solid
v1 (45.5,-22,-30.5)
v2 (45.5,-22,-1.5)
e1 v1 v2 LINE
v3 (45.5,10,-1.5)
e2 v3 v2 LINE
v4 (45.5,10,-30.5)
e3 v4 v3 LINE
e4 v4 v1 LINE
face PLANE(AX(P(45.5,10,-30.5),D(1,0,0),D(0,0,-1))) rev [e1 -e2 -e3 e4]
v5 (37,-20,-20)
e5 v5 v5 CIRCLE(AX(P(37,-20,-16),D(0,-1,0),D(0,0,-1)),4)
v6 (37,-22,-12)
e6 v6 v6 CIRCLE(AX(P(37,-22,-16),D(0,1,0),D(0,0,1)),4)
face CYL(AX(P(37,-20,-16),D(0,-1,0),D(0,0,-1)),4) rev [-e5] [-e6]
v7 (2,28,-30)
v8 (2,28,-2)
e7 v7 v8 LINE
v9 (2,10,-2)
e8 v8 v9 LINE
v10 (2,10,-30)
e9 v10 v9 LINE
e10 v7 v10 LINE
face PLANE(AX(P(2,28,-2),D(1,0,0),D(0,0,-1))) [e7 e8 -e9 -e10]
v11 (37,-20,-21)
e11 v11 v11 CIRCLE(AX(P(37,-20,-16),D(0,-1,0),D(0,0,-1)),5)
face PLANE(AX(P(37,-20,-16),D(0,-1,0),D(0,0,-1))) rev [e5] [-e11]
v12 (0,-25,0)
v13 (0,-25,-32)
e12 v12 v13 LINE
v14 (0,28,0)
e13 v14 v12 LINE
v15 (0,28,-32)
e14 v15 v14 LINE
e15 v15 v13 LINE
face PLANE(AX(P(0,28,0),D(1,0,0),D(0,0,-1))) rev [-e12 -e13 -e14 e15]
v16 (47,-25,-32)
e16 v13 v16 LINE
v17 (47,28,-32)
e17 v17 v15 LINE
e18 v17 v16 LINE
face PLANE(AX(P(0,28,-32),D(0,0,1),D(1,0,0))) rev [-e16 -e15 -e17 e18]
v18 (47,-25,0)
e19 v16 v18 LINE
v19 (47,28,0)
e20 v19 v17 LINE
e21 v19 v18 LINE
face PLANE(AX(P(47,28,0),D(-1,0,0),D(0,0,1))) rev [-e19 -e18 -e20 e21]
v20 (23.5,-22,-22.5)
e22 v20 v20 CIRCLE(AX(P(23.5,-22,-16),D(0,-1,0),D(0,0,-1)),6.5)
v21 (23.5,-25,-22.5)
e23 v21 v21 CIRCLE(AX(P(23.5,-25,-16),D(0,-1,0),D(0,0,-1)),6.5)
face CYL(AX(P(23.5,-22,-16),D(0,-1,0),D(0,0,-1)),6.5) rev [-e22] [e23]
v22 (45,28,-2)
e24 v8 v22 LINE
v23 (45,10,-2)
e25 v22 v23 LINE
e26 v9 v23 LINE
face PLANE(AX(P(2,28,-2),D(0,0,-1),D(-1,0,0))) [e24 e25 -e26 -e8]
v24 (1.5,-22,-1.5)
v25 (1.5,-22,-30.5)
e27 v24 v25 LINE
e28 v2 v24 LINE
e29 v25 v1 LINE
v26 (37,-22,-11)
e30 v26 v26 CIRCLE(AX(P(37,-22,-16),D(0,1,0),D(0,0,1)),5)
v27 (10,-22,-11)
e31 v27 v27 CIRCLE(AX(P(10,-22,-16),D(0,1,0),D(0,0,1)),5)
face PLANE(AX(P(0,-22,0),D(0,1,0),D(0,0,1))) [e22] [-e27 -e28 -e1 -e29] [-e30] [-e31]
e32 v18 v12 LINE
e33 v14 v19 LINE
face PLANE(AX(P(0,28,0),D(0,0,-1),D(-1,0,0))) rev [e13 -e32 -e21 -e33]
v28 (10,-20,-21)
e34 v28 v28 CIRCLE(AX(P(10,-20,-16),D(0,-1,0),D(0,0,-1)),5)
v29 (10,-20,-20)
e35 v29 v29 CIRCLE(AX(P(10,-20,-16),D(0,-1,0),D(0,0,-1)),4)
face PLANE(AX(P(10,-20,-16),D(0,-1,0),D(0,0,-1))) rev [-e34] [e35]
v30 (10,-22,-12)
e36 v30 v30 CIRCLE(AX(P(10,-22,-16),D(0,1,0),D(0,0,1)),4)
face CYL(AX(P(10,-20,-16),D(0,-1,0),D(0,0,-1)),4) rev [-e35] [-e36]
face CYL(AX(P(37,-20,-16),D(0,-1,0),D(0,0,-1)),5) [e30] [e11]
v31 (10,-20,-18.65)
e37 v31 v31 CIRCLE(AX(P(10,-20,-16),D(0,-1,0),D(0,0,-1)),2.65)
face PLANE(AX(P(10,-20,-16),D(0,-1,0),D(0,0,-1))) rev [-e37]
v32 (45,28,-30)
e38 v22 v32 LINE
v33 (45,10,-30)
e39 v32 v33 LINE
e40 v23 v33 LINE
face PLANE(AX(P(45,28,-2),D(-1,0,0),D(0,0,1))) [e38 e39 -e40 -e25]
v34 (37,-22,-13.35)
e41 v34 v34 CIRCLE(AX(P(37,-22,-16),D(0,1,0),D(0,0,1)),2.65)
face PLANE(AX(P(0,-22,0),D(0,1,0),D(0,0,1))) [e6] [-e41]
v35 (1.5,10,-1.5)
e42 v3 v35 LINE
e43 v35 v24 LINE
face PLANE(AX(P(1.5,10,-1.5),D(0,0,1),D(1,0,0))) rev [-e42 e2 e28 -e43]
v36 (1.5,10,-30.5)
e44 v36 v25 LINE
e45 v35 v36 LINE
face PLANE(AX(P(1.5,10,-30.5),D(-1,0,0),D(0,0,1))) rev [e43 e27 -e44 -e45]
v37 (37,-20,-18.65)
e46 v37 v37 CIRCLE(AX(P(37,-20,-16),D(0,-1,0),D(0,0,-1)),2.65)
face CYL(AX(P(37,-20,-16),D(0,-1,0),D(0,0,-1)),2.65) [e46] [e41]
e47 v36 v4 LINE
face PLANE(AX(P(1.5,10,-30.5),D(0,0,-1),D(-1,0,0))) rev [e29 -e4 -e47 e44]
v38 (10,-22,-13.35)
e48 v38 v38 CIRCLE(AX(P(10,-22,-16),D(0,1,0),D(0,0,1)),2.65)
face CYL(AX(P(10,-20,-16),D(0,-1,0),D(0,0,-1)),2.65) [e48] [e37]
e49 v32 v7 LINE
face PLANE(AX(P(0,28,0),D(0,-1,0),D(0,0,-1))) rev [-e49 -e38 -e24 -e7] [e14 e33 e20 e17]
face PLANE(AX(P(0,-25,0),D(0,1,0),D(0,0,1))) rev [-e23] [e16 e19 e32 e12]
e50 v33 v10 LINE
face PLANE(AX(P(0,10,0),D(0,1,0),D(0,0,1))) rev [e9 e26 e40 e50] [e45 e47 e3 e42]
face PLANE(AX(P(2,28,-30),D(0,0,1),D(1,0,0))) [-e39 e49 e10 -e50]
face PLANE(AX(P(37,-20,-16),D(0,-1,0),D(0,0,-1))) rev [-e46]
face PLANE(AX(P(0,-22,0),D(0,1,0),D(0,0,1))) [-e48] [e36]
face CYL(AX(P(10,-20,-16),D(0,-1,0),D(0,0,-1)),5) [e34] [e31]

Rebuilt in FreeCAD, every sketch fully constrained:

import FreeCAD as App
import Part
import Sketcher
from FreeCAD import Vector

doc = App.newDocument("Part")
params = doc.addObject("Spreadsheet::Sheet", "Params")
for row, (alias, value) in enumerate([
    ("sketch1_width", "47 mm"),
    ("sketch1_width2", "43 mm"),
    ("sketch1_height", "32 mm"),
    ("sketch1_height2", "28 mm"),
    ("pad1_length", "28 mm"),
    ("sketch2_width", "44 mm"),
    ("sketch2_height", "29 mm"),
    ("pocket1_length", "10 mm"),
    ("sketch3_width", "47 mm"),
    ("sketch3_width2", "44 mm"),
    ("sketch3_height", "32 mm"),
    ("sketch3_height2", "29 mm"),
    ("pad2_length", "25 mm"),
    ("sketch4_diameter", "13 mm"),
    ("sketch4_width", "47 mm"),
    ("sketch4_height", "32 mm"),
    ("pad3_length", "3 mm"),
    ("sketch5_diameter", "10 mm"),
    ("sketch5_diameter2", "8 mm"),
    ("pad4_length", "5 mm"),
    ("sketch6_diameter", "5.3 mm"),
    ("pad5_length", "5 mm"),
], start=1):
    params.set(f"A{row}", alias)
    params.set(f"B{row}", "=" + value)
    params.setAlias(f"B{row}", alias)

body = doc.addObject("PartDesign::Body", "Body")

sketch1 = body.newObject("Sketcher::SketchObject", "Sketch")
sketch1.AttachmentSupport = (doc.getObject("XZ_Plane"), [""])
sketch1.MapMode = "FlatFace"
sketch1.addGeometry([
    Part.LineSegment(Vector(0, -32, 0), Vector(0, 0, 0)),
    Part.LineSegment(Vector(0, 0, 0), Vector(47, 0, 0)),
    Part.LineSegment(Vector(47, 0, 0), Vector(47, -32, 0)),
    Part.LineSegment(Vector(47, -32, 0), Vector(0, -32, 0)),
    Part.LineSegment(Vector(45, -2, 0), Vector(2, -2, 0)),
    Part.LineSegment(Vector(2, -2, 0), Vector(2, -30, 0)),
    Part.LineSegment(Vector(2, -30, 0), Vector(45, -30, 0)),
    Part.LineSegment(Vector(45, -30, 0), Vector(45, -2, 0)),
], False)
sketch1.addConstraint([
    Sketcher.Constraint("Coincident", 0, 2, 1, 1),
    Sketcher.Constraint("Coincident", 1, 2, 2, 1),
    Sketcher.Constraint("Coincident", 2, 2, 3, 1),
    Sketcher.Constraint("Coincident", 3, 2, 0, 1),
    Sketcher.Constraint("Coincident", 4, 2, 5, 1),
    Sketcher.Constraint("Coincident", 5, 2, 6, 1),
    Sketcher.Constraint("Coincident", 6, 2, 7, 1),
    Sketcher.Constraint("Coincident", 7, 2, 4, 1),
    Sketcher.Constraint("Vertical", 0),
    Sketcher.Constraint("Horizontal", 1),
    Sketcher.Constraint("Vertical", 2),
    Sketcher.Constraint("Horizontal", 3),
    Sketcher.Constraint("Horizontal", 4),
    Sketcher.Constraint("Vertical", 5),
    Sketcher.Constraint("Horizontal", 6),
    Sketcher.Constraint("Vertical", 7),
    Sketcher.Constraint("Coincident", 0, 2, -1, 1),
    Sketcher.Constraint("DistanceX", 1, 1, 1, 2, 47.0),
    Sketcher.Constraint("DistanceX", 4, 2, 4, 1, 43.0),
    Sketcher.Constraint("DistanceY", 0, 1, 0, 2, 32.0),
    Sketcher.Constraint("DistanceY", 5, 2, 5, 1, 28.0),
    Sketcher.Constraint("DistanceX", -1, 1, 4, 2, 2.0),
    Sketcher.Constraint("DistanceY", 4, 2, -1, 1, 2.0),
])
sketch1.setExpression("Constraints[17]", "Params.sketch1_width")
sketch1.setExpression("Constraints[18]", "Params.sketch1_width2")
sketch1.setExpression("Constraints[19]", "Params.sketch1_height")
sketch1.setExpression("Constraints[20]", "Params.sketch1_height2")
pad1 = body.newObject("PartDesign::Pad", "Pad")
pad1.Profile = sketch1
pad1.setExpression("Length", "Params.pad1_length")
pad1.Reversed = True

sketch2 = body.newObject("Sketcher::SketchObject", "Sketch001")
sketch2.AttachmentSupport = (doc.getObject("XZ_Plane"), [""])
sketch2.MapMode = "FlatFace"
sketch2.addGeometry([
    Part.LineSegment(Vector(1.5, -1.5, 0), Vector(1.5, -30.5, 0)),
    Part.LineSegment(Vector(1.5, -30.5, 0), Vector(45.5, -30.5, 0)),
    Part.LineSegment(Vector(45.5, -30.5, 0), Vector(45.5, -1.5, 0)),
    Part.LineSegment(Vector(45.5, -1.5, 0), Vector(1.5, -1.5, 0)),
], False)
sketch2.addConstraint([
    Sketcher.Constraint("Coincident", 0, 2, 1, 1),
    Sketcher.Constraint("Coincident", 1, 2, 2, 1),
    Sketcher.Constraint("Coincident", 2, 2, 3, 1),
    Sketcher.Constraint("Coincident", 3, 2, 0, 1),
    Sketcher.Constraint("Vertical", 0),
    Sketcher.Constraint("Horizontal", 1),
    Sketcher.Constraint("Vertical", 2),
    Sketcher.Constraint("Horizontal", 3),
    Sketcher.Constraint("DistanceX", 1, 1, 1, 2, 44.0),
    Sketcher.Constraint("DistanceY", 0, 2, 0, 1, 29.0),
    Sketcher.Constraint("DistanceX", -1, 1, 0, 2, 1.5),
    Sketcher.Constraint("DistanceY", 0, 2, -1, 1, 30.5),
])
sketch2.setExpression("Constraints[8]", "Params.sketch2_width")
sketch2.setExpression("Constraints[9]", "Params.sketch2_height")
pocket1 = body.newObject("PartDesign::Pocket", "Pocket")
pocket1.Profile = sketch2
pocket1.setExpression("Length", "Params.pocket1_length")

sketch3 = body.newObject("Sketcher::SketchObject", "Sketch002")
sketch3.AttachmentSupport = (doc.getObject("XZ_Plane"), [""])
sketch3.MapMode = "FlatFace"
sketch3.addGeometry([
    Part.LineSegment(Vector(0, 0, 0), Vector(0, -32, 0)),
    Part.LineSegment(Vector(0, -32, 0), Vector(47, -32, 0)),
    Part.LineSegment(Vector(47, -32, 0), Vector(47, 0, 0)),
    Part.LineSegment(Vector(47, 0, 0), Vector(0, 0, 0)),
    Part.LineSegment(Vector(45.5, -30.5, 0), Vector(1.5, -30.5, 0)),
    Part.LineSegment(Vector(1.5, -30.5, 0), Vector(1.5, -1.5, 0)),
    Part.LineSegment(Vector(1.5, -1.5, 0), Vector(45.5, -1.5, 0)),
    Part.LineSegment(Vector(45.5, -1.5, 0), Vector(45.5, -30.5, 0)),
], False)
sketch3.addConstraint([
    Sketcher.Constraint("Coincident", 0, 2, 1, 1),
    Sketcher.Constraint("Coincident", 1, 2, 2, 1),
    Sketcher.Constraint("Coincident", 2, 2, 3, 1),
    Sketcher.Constraint("Coincident", 3, 2, 0, 1),
    Sketcher.Constraint("Coincident", 4, 2, 5, 1),
    Sketcher.Constraint("Coincident", 5, 2, 6, 1),
    Sketcher.Constraint("Coincident", 6, 2, 7, 1),
    Sketcher.Constraint("Coincident", 7, 2, 4, 1),
    Sketcher.Constraint("Vertical", 0),
    Sketcher.Constraint("Horizontal", 1),
    Sketcher.Constraint("Vertical", 2),
    Sketcher.Constraint("Horizontal", 3),
    Sketcher.Constraint("Horizontal", 4),
    Sketcher.Constraint("Vertical", 5),
    Sketcher.Constraint("Horizontal", 6),
    Sketcher.Constraint("Vertical", 7),
    Sketcher.Constraint("Coincident", 3, 2, -1, 1),
    Sketcher.Constraint("DistanceX", 1, 1, 1, 2, 47.0),
    Sketcher.Constraint("DistanceX", 4, 2, 4, 1, 44.0),
    Sketcher.Constraint("DistanceY", 0, 2, 0, 1, 32.0),
    Sketcher.Constraint("DistanceY", 5, 1, 5, 2, 29.0),
    Sketcher.Constraint("DistanceX", -1, 1, 4, 2, 1.5),
    Sketcher.Constraint("DistanceY", 4, 2, -1, 1, 30.5),
])
sketch3.setExpression("Constraints[17]", "Params.sketch3_width")
sketch3.setExpression("Constraints[18]", "Params.sketch3_width2")
sketch3.setExpression("Constraints[19]", "Params.sketch3_height")
sketch3.setExpression("Constraints[20]", "Params.sketch3_height2")
pad2 = body.newObject("PartDesign::Pad", "Pad001")
pad2.Profile = sketch3
pad2.setExpression("Length", "Params.pad2_length")

sketch4 = body.newObject("Sketcher::SketchObject", "Sketch003")
sketch4.AttachmentSupport = (doc.getObject("XZ_Plane"), [""])
sketch4.MapMode = "FlatFace"
sketch4.AttachmentOffset = App.Placement(Vector(0, 0, 25), App.Rotation())
sketch4.addGeometry([
    Part.LineSegment(Vector(0, 0, 0), Vector(0, -32, 0)),
    Part.LineSegment(Vector(0, -32, 0), Vector(47, -32, 0)),
    Part.LineSegment(Vector(47, -32, 0), Vector(47, 0, 0)),
    Part.LineSegment(Vector(47, 0, 0), Vector(0, 0, 0)),
    Part.Circle(Vector(23.5, -16, 0), Vector(0, 0, 1), 6.5),
], False)
sketch4.addConstraint([
    Sketcher.Constraint("Coincident", 0, 2, 1, 1),
    Sketcher.Constraint("Coincident", 1, 2, 2, 1),
    Sketcher.Constraint("Coincident", 2, 2, 3, 1),
    Sketcher.Constraint("Coincident", 3, 2, 0, 1),
    Sketcher.Constraint("Vertical", 0),
    Sketcher.Constraint("Horizontal", 1),
    Sketcher.Constraint("Vertical", 2),
    Sketcher.Constraint("Horizontal", 3),
    Sketcher.Constraint("Coincident", 3, 2, -1, 1),
    Sketcher.Constraint("Diameter", 4, 13.0),
    Sketcher.Constraint("DistanceX", 1, 1, 1, 2, 47.0),
    Sketcher.Constraint("DistanceY", 0, 2, 0, 1, 32.0),
    Sketcher.Constraint("DistanceY", 4, 3, -1, 1, 16.0),
    Sketcher.Constraint("DistanceX", -1, 1, 4, 3, 23.5),
])
sketch4.setExpression("Constraints[9]", "Params.sketch4_diameter")
sketch4.setExpression("Constraints[10]", "Params.sketch4_width")
sketch4.setExpression("Constraints[11]", "Params.sketch4_height")
pad3 = body.newObject("PartDesign::Pad", "Pad002")
pad3.Profile = sketch4
pad3.setExpression("Length", "Params.pad3_length")
pad3.Reversed = True

sketch5 = body.newObject("Sketcher::SketchObject", "Sketch004")
sketch5.AttachmentSupport = (doc.getObject("XZ_Plane"), [""])
sketch5.MapMode = "FlatFace"
sketch5.AttachmentOffset = App.Placement(Vector(0, 0, 25), App.Rotation())
sketch5.addGeometry([
    Part.Circle(Vector(10, -16, 0), Vector(0, 0, 1), 5),
    Part.Circle(Vector(10, -16, 0), Vector(0, 0, 1), 4),
    Part.Circle(Vector(37, -16, 0), Vector(0, 0, 1), 5),
    Part.Circle(Vector(37, -16, 0), Vector(0, 0, 1), 4),
], False)
sketch5.addConstraint([
    Sketcher.Constraint("Coincident", 1, 3, 0, 3),
    Sketcher.Constraint("Coincident", 3, 3, 2, 3),
    Sketcher.Constraint("Equal", 0, 2),
    Sketcher.Constraint("Equal", 1, 3),
    Sketcher.Constraint("Horizontal", 1, 3, 2, 3),
    Sketcher.Constraint("Diameter", 0, 10.0),
    Sketcher.Constraint("Diameter", 1, 8.0),
    Sketcher.Constraint("DistanceX", -1, 1, 0, 3, 10.0),
    Sketcher.Constraint("DistanceY", 0, 3, -1, 1, 16.0),
    Sketcher.Constraint("DistanceX", -1, 1, 2, 3, 37.0),
])
sketch5.setExpression("Constraints[5]", "Params.sketch5_diameter")
sketch5.setExpression("Constraints[6]", "Params.sketch5_diameter2")
pad4 = body.newObject("PartDesign::Pad", "Pad003")
pad4.Profile = sketch5
pad4.setExpression("Length", "Params.pad4_length")
pad4.Reversed = True

sketch6 = body.newObject("Sketcher::SketchObject", "Sketch005")
sketch6.AttachmentSupport = (doc.getObject("XZ_Plane"), [""])
sketch6.MapMode = "FlatFace"
sketch6.AttachmentOffset = App.Placement(Vector(0, 0, 25), App.Rotation())
sketch6.addGeometry([
    Part.Circle(Vector(10, -16, 0), Vector(0, 0, 1), 2.65),
    Part.Circle(Vector(37, -16, 0), Vector(0, 0, 1), 2.65),
], False)
sketch6.addConstraint([
    Sketcher.Constraint("Equal", 0, 1),
    Sketcher.Constraint("Horizontal", 0, 3, 1, 3),
    Sketcher.Constraint("Diameter", 0, 5.3),
    Sketcher.Constraint("DistanceX", -1, 1, 0, 3, 10.0),
    Sketcher.Constraint("DistanceY", 0, 3, -1, 1, 16.0),
    Sketcher.Constraint("DistanceX", -1, 1, 1, 3, 37.0),
])
sketch6.setExpression("Constraints[2]", "Params.sketch6_diameter")
pad5 = body.newObject("PartDesign::Pad", "Pad004")
pad5.Profile = sketch6
pad5.setExpression("Length", "Params.pad5_length")
pad5.Reversed = True

doc.recompute()
